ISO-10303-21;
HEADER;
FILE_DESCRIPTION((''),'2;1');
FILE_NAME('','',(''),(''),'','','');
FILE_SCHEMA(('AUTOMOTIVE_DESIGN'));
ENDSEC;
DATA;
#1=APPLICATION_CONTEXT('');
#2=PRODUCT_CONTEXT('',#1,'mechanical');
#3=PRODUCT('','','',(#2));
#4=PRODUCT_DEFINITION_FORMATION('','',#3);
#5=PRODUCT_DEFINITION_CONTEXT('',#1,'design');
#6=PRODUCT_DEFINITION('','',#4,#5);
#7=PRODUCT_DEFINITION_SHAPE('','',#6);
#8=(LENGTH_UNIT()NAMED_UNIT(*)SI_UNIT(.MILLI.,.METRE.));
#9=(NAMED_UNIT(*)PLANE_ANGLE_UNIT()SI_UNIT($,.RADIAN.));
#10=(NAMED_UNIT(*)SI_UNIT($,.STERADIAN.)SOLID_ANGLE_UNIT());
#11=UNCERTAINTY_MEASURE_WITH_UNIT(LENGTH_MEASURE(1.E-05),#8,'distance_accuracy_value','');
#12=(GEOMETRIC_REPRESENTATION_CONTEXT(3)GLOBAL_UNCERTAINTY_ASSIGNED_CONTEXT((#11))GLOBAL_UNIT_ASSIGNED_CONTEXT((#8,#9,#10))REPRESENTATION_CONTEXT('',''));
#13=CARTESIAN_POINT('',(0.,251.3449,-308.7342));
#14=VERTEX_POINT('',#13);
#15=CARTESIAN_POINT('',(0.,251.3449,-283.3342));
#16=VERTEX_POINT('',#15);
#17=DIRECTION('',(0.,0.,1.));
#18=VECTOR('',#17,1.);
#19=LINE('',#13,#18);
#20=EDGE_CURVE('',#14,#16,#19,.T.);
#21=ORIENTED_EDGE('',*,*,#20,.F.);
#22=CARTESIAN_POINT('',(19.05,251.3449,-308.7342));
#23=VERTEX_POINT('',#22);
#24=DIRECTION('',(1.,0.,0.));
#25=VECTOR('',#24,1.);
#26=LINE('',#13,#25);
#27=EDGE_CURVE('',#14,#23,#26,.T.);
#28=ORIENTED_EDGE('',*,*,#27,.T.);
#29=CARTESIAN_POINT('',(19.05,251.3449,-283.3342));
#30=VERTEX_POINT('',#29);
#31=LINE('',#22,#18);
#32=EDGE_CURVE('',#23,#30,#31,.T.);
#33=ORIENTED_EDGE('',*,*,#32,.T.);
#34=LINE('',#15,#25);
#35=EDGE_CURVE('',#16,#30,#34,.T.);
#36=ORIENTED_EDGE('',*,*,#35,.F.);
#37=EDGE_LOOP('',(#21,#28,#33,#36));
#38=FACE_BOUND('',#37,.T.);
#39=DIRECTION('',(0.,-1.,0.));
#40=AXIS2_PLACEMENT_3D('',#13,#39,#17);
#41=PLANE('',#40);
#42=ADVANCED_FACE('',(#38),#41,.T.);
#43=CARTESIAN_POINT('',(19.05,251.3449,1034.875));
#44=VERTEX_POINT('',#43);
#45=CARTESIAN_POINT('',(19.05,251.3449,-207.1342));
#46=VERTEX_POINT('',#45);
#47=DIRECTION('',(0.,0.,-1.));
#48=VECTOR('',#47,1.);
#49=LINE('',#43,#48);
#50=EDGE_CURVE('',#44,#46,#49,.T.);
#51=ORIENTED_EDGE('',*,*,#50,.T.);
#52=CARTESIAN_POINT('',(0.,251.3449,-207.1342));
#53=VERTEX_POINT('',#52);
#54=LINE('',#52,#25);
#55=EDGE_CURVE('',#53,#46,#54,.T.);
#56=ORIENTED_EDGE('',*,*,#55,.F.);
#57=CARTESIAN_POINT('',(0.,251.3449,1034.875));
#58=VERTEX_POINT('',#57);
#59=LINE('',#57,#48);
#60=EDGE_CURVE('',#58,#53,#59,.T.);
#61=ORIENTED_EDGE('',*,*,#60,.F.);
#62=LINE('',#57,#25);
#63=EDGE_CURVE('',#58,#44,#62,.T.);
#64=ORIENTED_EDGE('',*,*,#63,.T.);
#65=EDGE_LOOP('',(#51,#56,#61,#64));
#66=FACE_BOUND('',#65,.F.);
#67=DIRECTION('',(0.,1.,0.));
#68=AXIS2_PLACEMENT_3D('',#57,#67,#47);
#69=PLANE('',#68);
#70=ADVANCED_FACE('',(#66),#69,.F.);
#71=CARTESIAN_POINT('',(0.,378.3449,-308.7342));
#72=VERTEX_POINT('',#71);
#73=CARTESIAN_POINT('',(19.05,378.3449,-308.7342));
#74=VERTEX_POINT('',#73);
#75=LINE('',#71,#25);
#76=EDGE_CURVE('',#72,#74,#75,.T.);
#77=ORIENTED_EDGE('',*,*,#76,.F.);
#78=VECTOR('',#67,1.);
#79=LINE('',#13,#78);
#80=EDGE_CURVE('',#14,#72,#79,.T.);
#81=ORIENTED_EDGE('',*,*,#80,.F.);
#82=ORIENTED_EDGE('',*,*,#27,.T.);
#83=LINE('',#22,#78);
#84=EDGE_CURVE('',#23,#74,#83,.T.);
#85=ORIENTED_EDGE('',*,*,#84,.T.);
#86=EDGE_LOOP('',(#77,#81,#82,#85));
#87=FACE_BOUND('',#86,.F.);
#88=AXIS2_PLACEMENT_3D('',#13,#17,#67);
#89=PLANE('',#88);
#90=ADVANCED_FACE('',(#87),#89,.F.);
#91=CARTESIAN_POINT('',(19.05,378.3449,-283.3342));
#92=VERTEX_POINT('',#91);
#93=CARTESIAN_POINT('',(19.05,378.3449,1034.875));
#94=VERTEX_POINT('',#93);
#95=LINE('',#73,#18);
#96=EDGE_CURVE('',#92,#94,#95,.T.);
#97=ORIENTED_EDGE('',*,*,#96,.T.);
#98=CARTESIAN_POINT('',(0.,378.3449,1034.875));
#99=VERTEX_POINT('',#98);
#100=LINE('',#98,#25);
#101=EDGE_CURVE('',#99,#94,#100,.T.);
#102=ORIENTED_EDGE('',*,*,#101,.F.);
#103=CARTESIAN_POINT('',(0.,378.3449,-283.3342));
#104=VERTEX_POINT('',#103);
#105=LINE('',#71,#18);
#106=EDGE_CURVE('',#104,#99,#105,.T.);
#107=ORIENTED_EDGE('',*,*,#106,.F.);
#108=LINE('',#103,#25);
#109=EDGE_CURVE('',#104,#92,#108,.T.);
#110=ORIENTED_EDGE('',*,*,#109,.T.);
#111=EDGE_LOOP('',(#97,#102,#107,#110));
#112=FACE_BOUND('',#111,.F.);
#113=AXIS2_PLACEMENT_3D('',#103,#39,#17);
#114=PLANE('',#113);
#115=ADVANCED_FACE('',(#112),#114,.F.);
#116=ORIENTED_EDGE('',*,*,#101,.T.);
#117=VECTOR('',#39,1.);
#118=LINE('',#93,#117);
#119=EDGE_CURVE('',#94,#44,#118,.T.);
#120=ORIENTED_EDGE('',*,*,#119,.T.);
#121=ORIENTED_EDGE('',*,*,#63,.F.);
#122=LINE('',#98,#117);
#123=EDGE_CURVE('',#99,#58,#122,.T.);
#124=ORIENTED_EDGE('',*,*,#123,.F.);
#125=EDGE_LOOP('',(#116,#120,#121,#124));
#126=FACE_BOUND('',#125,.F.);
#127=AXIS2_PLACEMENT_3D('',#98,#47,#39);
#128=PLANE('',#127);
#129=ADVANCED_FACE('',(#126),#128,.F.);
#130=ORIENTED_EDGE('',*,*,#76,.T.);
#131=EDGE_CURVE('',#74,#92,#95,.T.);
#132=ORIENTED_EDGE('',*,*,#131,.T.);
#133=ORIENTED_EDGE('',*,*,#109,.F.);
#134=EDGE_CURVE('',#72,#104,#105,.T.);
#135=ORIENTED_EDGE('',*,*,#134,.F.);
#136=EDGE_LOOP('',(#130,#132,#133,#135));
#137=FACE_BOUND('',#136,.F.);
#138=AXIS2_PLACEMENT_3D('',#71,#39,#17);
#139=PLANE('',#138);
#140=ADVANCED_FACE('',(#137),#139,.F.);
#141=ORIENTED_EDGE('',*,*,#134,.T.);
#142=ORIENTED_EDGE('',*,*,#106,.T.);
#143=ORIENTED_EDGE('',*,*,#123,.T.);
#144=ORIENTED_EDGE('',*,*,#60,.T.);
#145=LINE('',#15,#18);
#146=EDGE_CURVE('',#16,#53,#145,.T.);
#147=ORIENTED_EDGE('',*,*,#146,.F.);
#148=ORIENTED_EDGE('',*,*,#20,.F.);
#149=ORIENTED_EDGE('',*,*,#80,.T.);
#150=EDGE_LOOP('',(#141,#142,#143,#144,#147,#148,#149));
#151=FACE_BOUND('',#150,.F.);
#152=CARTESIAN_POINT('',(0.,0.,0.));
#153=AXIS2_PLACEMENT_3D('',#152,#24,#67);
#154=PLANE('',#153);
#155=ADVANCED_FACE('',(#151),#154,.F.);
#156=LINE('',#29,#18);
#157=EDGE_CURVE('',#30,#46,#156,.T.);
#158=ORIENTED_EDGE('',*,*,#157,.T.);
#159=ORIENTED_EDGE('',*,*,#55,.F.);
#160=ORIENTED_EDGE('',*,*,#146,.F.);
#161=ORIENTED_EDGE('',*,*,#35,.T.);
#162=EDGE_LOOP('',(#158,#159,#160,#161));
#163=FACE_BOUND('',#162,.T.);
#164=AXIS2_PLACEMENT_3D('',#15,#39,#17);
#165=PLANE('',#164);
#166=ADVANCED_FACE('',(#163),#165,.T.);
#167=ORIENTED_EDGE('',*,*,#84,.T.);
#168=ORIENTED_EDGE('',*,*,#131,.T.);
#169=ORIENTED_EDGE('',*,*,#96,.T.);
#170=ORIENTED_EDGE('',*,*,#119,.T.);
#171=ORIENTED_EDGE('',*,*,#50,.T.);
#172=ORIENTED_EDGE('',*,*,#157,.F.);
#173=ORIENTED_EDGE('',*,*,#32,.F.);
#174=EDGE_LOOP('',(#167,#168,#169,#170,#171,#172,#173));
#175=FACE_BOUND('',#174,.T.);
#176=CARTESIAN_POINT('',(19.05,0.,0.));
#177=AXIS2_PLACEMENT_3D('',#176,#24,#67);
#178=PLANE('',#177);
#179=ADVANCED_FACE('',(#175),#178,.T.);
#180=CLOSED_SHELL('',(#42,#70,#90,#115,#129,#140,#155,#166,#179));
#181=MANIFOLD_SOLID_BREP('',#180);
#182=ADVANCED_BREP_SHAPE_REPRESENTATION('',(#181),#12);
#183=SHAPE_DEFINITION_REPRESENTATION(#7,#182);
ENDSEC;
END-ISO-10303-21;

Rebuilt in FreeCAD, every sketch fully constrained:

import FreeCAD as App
import Part
import Sketcher
from FreeCAD import Vector
Q = App.Units.Quantity

doc = App.newDocument("Part")
body = doc.addObject("PartDesign::Body", "Body")

# Sketch on YZ plane
sketch1 = doc.addObject("Sketcher::SketchObject", "Sketch")
body.addObject(sketch1)
sketch1.AttachmentSupport = (doc.YZ_Plane, [""])
sketch1.MapMode = "FlatFace"
sketch1.addGeometry(Part.LineSegment(Vector(251.3449, 1034.875, 0), Vector(251.3449, -308.7342, 0)), False)
sketch1.addGeometry(Part.LineSegment(Vector(251.3449, -308.7342, 0), Vector(378.3449, -308.7342, 0)), False)
sketch1.addGeometry(Part.LineSegment(Vector(378.3449, -308.7342, 0), Vector(378.3449, 1034.875, 0)), False)
sketch1.addGeometry(Part.LineSegment(Vector(378.3449, 1034.875, 0), Vector(251.3449, 1034.875, 0)), False)
sketch1.addConstraint(Sketcher.Constraint("Coincident", 0, 2, 1, 1))
sketch1.addConstraint(Sketcher.Constraint("Coincident", 1, 2, 2, 1))
sketch1.addConstraint(Sketcher.Constraint("Coincident", 2, 2, 3, 1))
sketch1.addConstraint(Sketcher.Constraint("Coincident", 3, 2, 0, 1))
sketch1.addConstraint(Sketcher.Constraint("Vertical", 0))
sketch1.addConstraint(Sketcher.Constraint("Horizontal", 1))
sketch1.addConstraint(Sketcher.Constraint("Vertical", 2))
sketch1.addConstraint(Sketcher.Constraint("Horizontal", 3))
sketch1.addConstraint(Sketcher.Constraint("DistanceX", 1, 1, 1, 2, Q("5 in")))
sketch1.addConstraint(Sketcher.Constraint("DistanceY", 0, 2, 0, 1, Q("52.898 in")))
sketch1.addConstraint(Sketcher.Constraint("DistanceY", 0, 2, -1, 1, Q("12.1549 in")))
sketch1.addConstraint(Sketcher.Constraint("DistanceX", -1, 1, 0, 2, 251.345))
pad1 = doc.addObject("PartDesign::Pad", "Pad")
body.addObject(pad1)
pad1.Profile = sketch1
pad1.Length = Q("0.75 in")

doc.recompute()
